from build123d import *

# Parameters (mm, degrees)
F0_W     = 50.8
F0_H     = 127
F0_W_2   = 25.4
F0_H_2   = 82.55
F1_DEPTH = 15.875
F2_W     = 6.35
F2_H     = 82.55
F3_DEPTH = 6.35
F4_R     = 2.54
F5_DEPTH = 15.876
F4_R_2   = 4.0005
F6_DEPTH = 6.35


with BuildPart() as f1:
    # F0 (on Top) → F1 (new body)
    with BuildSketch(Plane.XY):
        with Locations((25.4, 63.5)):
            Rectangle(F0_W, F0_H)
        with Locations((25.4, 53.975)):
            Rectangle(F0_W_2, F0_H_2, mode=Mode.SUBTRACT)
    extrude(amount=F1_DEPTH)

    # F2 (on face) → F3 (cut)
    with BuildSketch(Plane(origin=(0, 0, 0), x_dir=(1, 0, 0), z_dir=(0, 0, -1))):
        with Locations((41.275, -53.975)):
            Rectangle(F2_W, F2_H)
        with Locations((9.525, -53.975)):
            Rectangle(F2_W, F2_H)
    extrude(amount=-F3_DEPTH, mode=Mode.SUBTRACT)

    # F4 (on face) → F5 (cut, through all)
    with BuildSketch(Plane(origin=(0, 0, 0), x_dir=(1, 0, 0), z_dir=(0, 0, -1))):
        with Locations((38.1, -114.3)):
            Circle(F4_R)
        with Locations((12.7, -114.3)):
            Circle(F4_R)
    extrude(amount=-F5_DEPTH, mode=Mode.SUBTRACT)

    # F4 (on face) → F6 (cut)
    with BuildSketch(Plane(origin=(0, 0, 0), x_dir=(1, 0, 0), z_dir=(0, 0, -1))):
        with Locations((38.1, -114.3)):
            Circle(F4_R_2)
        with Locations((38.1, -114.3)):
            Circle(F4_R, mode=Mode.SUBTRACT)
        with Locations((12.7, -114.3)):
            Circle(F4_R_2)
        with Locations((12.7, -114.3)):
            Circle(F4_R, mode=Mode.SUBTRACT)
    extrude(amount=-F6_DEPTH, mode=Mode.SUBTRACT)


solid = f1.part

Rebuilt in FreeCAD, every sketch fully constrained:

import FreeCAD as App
import Part
import Sketcher
Q = App.Units.Quantity


def add_polygon(sketch, points):
    """Adds a closed chain of lines whose ends are joined by coincident constraints."""
    first, n = sketch.GeometryCount, len(points)
    for a, b in zip(points, points[1:] + points[:1]):
        sketch.addGeometry(Part.LineSegment(App.Vector(*a, 0), App.Vector(*b, 0)), False)
    for i in range(n):
        sketch.addConstraint(Sketcher.Constraint("Coincident", first + i, 2, first + (i + 1) % n, 1))

doc = App.newDocument("Part")
body = doc.addObject("PartDesign::Body", "Body")

# Sketch on XY plane
sketch1 = body.newObject("Sketcher::SketchObject", "Sketch")
sketch1.AttachmentSupport = (doc.getObject("XY_Plane"), [""])
sketch1.MapMode = "FlatFace"
add_polygon(sketch1, [(0, 127), (0, 0), (50.8, 0), (50.8, 127)])  # lines 0-3
add_polygon(sketch1, [(38.1, 12.7), (12.7, 12.7), (12.7, 95.25), (38.1, 95.25)])  # lines 4-7
sketch1.addConstraint([
    Sketcher.Constraint("Vertical", 0),
    Sketcher.Constraint("Horizontal", 1),
    Sketcher.Constraint("Vertical", 2),
    Sketcher.Constraint("Horizontal", 3),
    Sketcher.Constraint("Horizontal", 4),
    Sketcher.Constraint("Vertical", 5),
    Sketcher.Constraint("Horizontal", 6),
    Sketcher.Constraint("Vertical", 7),
    Sketcher.Constraint("Coincident", 0, 2, -1, 1),
    Sketcher.Constraint("DistanceX", 1, 1, 1, 2, Q("2 in")),
    Sketcher.Constraint("DistanceX", 4, 2, 4, 1, Q("1 in")),
    Sketcher.Constraint("DistanceY", 0, 2, 0, 1, Q("5 in")),
    Sketcher.Constraint("DistanceY", 5, 1, 5, 2, Q("3.25 in")),
    Sketcher.Constraint("DistanceX", -1, 1, 4, 2, Q("0.5 in")),
    Sketcher.Constraint("DistanceY", -1, 1, 4, 2, Q("0.5 in")),
])
pad1 = body.newObject("PartDesign::Pad", "Pad")
pad1.Profile = sketch1
pad1.Length = Q("0.625 in")

# Sketch on XY plane
sketch2 = body.newObject("Sketcher::SketchObject", "Sketch001")
sketch2.AttachmentSupport = (doc.getObject("XY_Plane"), [""])
sketch2.MapMode = "FlatFace"
add_polygon(sketch2, [(38.1, 12.7), (38.1, 95.25), (44.45, 95.25), (44.45, 12.7)])  # lines 0-3
add_polygon(sketch2, [(6.35, 12.7), (6.35, 95.25), (12.7, 95.25), (12.7, 12.7)])  # lines 4-7
sketch2.addConstraint([
    Sketcher.Constraint("Vertical", 0),
    Sketcher.Constraint("Horizontal", 1),
    Sketcher.Constraint("Vertical", 2),
    Sketcher.Constraint("Horizontal", 3),
    Sketcher.Constraint("Vertical", 4),
    Sketcher.Constraint("Horizontal", 5),
    Sketcher.Constraint("Vertical", 6),
    Sketcher.Constraint("Horizontal", 7),
    Sketcher.Constraint("Horizontal", 1, 2, 4, 2),
    Sketcher.Constraint("Horizontal", 3, 2, 6, 2),
    Sketcher.Constraint("Equal", 3, 5),
    Sketcher.Constraint("DistanceX", 5, 2, 0, 2, Q("1 in")),
    Sketcher.Constraint("DistanceX", 1, 1, 1, 2, Q("0.25 in")),
    Sketcher.Constraint("DistanceY", 0, 1, 0, 2, Q("3.25 in")),
    Sketcher.Constraint("DistanceX", -1, 1, 0, 2, Q("1.5 in")),
    Sketcher.Constraint("DistanceY", -1, 1, 2, 2, Q("0.5 in")),
])
pocket1 = body.newObject("PartDesign::Pocket", "Pocket")
pocket1.Profile = sketch2
pocket1.Length = Q("0.25 in")
pocket1.Reversed = True

# Sketch on XY plane
sketch3 = body.newObject("Sketcher::SketchObject", "Sketch002")
sketch3.AttachmentSupport = (doc.getObject("XY_Plane"), [""])
sketch3.MapMode = "FlatFace"
sketch3.addGeometry([
    Part.Circle(App.Vector(38.1, 114.3, 0), App.Vector(0, 0, 1), 2.54),
    Part.Circle(App.Vector(12.7, 114.3, 0), App.Vector(0, 0, 1), 2.54),
], False)
sketch3.addConstraint([
    Sketcher.Constraint("Equal", 0, 1),
    Sketcher.Constraint("Horizontal", 0, 3, 1, 3),
    Sketcher.Constraint("Diameter", 0, Q("0.2 in")),
    Sketcher.Constraint("DistanceX", 1, 3, 0, 3, Q("1 in")),
    Sketcher.Constraint("DistanceX", -1, 1, 0, 3, Q("1.5 in")),
    Sketcher.Constraint("DistanceY", -1, 1, 0, 3, Q("4.5 in")),
])
pocket2 = body.newObject("PartDesign::Pocket", "Pocket001")
pocket2.Profile = sketch3
pocket2.Type = "ThroughAll"
pocket2.Reversed = True

# Sketch on XY plane
sketch4 = body.newObject("Sketcher::SketchObject", "Sketch003")
sketch4.AttachmentSupport = (doc.getObject("XY_Plane"), [""])
sketch4.MapMode = "FlatFace"
sketch4.addGeometry([
    Part.Circle(App.Vector(38.1, 114.3, 0), App.Vector(0, 0, 1), 4.0005),
    Part.Circle(App.Vector(38.1, 114.3, 0), App.Vector(0, 0, 1), 2.54),
    Part.Circle(App.Vector(12.7, 114.3, 0), App.Vector(0, 0, 1), 4.0005),
    Part.Circle(App.Vector(12.7, 114.3, 0), App.Vector(0, 0, 1), 2.54),
], False)
sketch4.addConstraint([
    Sketcher.Constraint("Coincident", 1, 3, 0, 3),
    Sketcher.Constraint("Coincident", 3, 3, 2, 3),
    Sketcher.Constraint("Equal", 0, 2),
    Sketcher.Constraint("Equal", 1, 3),
    Sketcher.Constraint("Horizontal", 1, 3, 2, 3),
    Sketcher.Constraint("Diameter", 1, Q("0.2 in")),
    Sketcher.Constraint("Diameter", 0, Q("0.315 in")),
    Sketcher.Constraint("DistanceX", 2, 3, 0, 3, Q("1 in")),
    Sketcher.Constraint("DistanceX", -1, 1, 0, 3, Q("1.5 in")),
    Sketcher.Constraint("DistanceY", -1, 1, 0, 3, Q("4.5 in")),
])
pocket3 = body.newObject("PartDesign::Pocket", "Pocket002")
pocket3.Profile = sketch4
pocket3.Length = Q("0.25 in")
pocket3.Reversed = True

doc.recompute()
